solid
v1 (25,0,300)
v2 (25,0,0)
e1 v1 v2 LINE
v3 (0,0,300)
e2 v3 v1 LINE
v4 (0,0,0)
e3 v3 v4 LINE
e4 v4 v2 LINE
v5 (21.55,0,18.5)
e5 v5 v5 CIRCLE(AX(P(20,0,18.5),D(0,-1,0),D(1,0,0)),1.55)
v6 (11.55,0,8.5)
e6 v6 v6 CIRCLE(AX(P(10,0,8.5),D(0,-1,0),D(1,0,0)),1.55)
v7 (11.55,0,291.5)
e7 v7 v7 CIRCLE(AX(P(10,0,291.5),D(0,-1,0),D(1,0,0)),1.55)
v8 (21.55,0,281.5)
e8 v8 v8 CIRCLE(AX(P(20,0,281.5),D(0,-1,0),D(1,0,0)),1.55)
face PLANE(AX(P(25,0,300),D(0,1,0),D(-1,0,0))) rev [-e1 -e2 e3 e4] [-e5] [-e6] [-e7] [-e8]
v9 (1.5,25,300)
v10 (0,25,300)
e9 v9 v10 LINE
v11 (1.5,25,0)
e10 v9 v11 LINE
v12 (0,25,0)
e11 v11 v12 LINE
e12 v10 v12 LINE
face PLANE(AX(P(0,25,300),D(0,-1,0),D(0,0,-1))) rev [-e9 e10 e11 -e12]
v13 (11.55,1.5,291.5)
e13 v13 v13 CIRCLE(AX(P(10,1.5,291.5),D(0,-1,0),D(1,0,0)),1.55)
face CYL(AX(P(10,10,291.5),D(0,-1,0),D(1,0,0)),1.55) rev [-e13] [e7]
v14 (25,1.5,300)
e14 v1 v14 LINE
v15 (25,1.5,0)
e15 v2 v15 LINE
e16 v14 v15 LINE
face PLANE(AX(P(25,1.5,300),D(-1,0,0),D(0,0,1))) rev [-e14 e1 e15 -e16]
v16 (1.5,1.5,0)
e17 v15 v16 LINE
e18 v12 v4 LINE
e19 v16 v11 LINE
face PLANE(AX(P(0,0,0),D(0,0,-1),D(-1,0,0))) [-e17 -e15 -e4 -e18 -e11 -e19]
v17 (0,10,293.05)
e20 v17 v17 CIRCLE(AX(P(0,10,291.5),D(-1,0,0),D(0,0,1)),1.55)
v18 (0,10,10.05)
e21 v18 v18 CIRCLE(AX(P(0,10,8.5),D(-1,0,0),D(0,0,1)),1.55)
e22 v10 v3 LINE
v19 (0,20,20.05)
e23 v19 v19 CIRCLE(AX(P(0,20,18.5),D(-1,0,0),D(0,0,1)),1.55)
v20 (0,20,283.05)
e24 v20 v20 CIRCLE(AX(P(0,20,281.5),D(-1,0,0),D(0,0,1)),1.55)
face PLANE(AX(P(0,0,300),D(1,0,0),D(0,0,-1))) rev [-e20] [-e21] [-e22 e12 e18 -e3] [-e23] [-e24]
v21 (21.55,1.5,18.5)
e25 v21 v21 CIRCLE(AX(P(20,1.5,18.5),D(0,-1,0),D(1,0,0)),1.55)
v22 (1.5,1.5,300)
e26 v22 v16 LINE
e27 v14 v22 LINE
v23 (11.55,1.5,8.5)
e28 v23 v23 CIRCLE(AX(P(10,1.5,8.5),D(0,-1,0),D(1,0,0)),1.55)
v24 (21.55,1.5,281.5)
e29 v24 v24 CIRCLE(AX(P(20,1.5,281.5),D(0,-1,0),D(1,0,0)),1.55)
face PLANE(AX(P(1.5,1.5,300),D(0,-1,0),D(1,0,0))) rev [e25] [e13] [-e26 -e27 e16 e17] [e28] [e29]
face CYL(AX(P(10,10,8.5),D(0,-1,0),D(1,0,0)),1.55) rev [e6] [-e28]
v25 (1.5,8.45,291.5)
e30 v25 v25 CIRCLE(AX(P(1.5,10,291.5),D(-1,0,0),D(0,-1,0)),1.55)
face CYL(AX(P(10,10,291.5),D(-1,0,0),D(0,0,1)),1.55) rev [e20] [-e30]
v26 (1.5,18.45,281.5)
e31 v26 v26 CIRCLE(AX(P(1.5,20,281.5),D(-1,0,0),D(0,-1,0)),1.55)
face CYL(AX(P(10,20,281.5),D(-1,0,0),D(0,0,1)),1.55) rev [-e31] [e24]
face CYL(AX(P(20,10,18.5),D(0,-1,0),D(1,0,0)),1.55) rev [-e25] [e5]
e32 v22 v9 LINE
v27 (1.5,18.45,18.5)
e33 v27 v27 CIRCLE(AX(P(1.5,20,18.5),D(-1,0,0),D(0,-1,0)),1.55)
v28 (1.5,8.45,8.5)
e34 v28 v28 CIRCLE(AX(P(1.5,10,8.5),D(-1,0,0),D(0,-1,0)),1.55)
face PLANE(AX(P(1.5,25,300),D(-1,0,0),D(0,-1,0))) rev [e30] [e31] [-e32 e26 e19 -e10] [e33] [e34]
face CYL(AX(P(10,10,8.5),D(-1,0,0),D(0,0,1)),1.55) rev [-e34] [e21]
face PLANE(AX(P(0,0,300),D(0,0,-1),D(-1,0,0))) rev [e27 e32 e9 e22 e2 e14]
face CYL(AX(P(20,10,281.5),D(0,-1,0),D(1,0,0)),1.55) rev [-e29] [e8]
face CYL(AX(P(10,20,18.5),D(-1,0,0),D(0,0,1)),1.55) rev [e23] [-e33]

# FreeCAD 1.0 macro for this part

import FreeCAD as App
import Part
import Sketcher
from FreeCAD import Vector

doc = App.newDocument("Part")
body = doc.addObject("PartDesign::Body", "Body")

sketch1 = body.newObject("Sketcher::SketchObject", "Sketch")
sketch1.AttachmentSupport = (doc.getObject("XY_Plane"), [""])
sketch1.MapMode = "FlatFace"
sketch1.addGeometry([
    Part.LineSegment(Vector(0, 25, 0), Vector(0, 0, 0)),
    Part.LineSegment(Vector(0, 0, 0), Vector(25, 0, 0)),
    Part.LineSegment(Vector(25, 0, 0), Vector(25, 1.5, 0)),
    Part.LineSegment(Vector(25, 1.5, 0), Vector(1.5, 1.5, 0)),
    Part.LineSegment(Vector(1.5, 1.5, 0), Vector(1.5, 25, 0)),
    Part.LineSegment(Vector(1.5, 25, 0), Vector(0, 25, 0)),
], False)
sketch1.addConstraint([
    Sketcher.Constraint("Coincident", 0, 2, 1, 1),
    Sketcher.Constraint("Coincident", 1, 2, 2, 1),
    Sketcher.Constraint("Coincident", 2, 2, 3, 1),
    Sketcher.Constraint("Coincident", 3, 2, 4, 1),
    Sketcher.Constraint("Coincident", 4, 2, 5, 1),
    Sketcher.Constraint("Coincident", 5, 2, 0, 1),
    Sketcher.Constraint("Vertical", 0),
    Sketcher.Constraint("Horizontal", 1),
    Sketcher.Constraint("Vertical", 2),
    Sketcher.Constraint("Horizontal", 3),
    Sketcher.Constraint("Vertical", 4),
    Sketcher.Constraint("Horizontal", 5),
    Sketcher.Constraint("Coincident", 0, 2, -1, 1),
    Sketcher.Constraint("Equal", 1, 0),
    Sketcher.Constraint("Equal", 5, 2),
    Sketcher.Constraint("DistanceX", 1, 1, 1, 2, 25.0),
    Sketcher.Constraint("DistanceX", 3, 2, 3, 1, 23.5),
])
pad1 = body.newObject("PartDesign::Pad", "Pad")
pad1.Profile = sketch1
pad1.Length = 300

sketch2 = body.newObject("Sketcher::SketchObject", "Sketch001")
sketch2.AttachmentSupport = (doc.getObject("YZ_Plane"), [""])
sketch2.MapMode = "FlatFace"
sketch2.addGeometry([
    Part.Circle(Vector(20, 281.5, 0), Vector(0, 0, 1), 1.6),
    Part.Circle(Vector(10, 291.5, 0), Vector(0, 0, 1), 1.6),
    Part.Circle(Vector(20, 18.5, 0), Vector(0, 0, 1), 1.6),
    Part.Circle(Vector(10, 8.5, 0), Vector(0, 0, 1), 1.6),
], False)
sketch2.addConstraint([
    Sketcher.Constraint("Equal", 0, 1),
    Sketcher.Constraint("Equal", 1, 2),
    Sketcher.Constraint("Equal", 2, 3),
    Sketcher.Constraint("Vertical", 0, 3, 2, 3),
    Sketcher.Constraint("Vertical", 1, 3, 3, 3),
    Sketcher.Constraint("Diameter", 0, 3.1),
    Sketcher.Constraint("DistanceX", -1, 1, 0, 3, 20.0),
    Sketcher.Constraint("DistanceX", -1, 1, 1, 3, 10.0),
    Sketcher.Constraint("DistanceY", 0, 3, 1, 3, 10.0),
    Sketcher.Constraint("DistanceY", 2, 3, 0, 3, 263.0),
    Sketcher.Constraint("DistanceY", 3, 3, 2, 3, 10.0),
    Sketcher.Constraint("DistanceY", -1, 1, 0, 3, 281.5),
])
pocket1 = body.newObject("PartDesign::Pocket", "Pocket")
pocket1.Profile = sketch2
pocket1.Length = 10
pocket1.Reversed = True

sketch3 = body.newObject("Sketcher::SketchObject", "Sketch002")
sketch3.AttachmentSupport = (doc.getObject("XZ_Plane"), [""])
sketch3.MapMode = "FlatFace"
sketch3.addGeometry([
    Part.Circle(Vector(20, 281.5, 0), Vector(0, 0, 1), 1.6),
    Part.Circle(Vector(10, 291.5, 0), Vector(0, 0, 1), 1.6),
    Part.Circle(Vector(20, 18.5, 0), Vector(0, 0, 1), 1.6),
    Part.Circle(Vector(10, 8.5, 0), Vector(0, 0, 1), 1.6),
], False)
sketch3.addConstraint([
    Sketcher.Constraint("Equal", 0, 1),
    Sketcher.Constraint("Equal", 1, 2),
    Sketcher.Constraint("Equal", 2, 3),
    Sketcher.Constraint("Vertical", 0, 3, 2, 3),
    Sketcher.Constraint("Vertical", 1, 3, 3, 3),
    Sketcher.Constraint("Diameter", 0, 3.1),
    Sketcher.Constraint("DistanceX", -1, 1, 0, 3, 20.0),
    Sketcher.Constraint("DistanceX", -1, 1, 1, 3, 10.0),
    Sketcher.Constraint("DistanceY", 0, 3, 1, 3, 10.0),
    Sketcher.Constraint("DistanceY", 2, 3, 0, 3, 263.0),
    Sketcher.Constraint("DistanceY", 3, 3, 2, 3, 10.0),
    Sketcher.Constraint("DistanceY", -1, 1, 0, 3, 281.5),
])
pocket2 = body.newObject("PartDesign::Pocket", "Pocket001")
pocket2.Profile = sketch3
pocket2.Length = 10

doc.recompute()
